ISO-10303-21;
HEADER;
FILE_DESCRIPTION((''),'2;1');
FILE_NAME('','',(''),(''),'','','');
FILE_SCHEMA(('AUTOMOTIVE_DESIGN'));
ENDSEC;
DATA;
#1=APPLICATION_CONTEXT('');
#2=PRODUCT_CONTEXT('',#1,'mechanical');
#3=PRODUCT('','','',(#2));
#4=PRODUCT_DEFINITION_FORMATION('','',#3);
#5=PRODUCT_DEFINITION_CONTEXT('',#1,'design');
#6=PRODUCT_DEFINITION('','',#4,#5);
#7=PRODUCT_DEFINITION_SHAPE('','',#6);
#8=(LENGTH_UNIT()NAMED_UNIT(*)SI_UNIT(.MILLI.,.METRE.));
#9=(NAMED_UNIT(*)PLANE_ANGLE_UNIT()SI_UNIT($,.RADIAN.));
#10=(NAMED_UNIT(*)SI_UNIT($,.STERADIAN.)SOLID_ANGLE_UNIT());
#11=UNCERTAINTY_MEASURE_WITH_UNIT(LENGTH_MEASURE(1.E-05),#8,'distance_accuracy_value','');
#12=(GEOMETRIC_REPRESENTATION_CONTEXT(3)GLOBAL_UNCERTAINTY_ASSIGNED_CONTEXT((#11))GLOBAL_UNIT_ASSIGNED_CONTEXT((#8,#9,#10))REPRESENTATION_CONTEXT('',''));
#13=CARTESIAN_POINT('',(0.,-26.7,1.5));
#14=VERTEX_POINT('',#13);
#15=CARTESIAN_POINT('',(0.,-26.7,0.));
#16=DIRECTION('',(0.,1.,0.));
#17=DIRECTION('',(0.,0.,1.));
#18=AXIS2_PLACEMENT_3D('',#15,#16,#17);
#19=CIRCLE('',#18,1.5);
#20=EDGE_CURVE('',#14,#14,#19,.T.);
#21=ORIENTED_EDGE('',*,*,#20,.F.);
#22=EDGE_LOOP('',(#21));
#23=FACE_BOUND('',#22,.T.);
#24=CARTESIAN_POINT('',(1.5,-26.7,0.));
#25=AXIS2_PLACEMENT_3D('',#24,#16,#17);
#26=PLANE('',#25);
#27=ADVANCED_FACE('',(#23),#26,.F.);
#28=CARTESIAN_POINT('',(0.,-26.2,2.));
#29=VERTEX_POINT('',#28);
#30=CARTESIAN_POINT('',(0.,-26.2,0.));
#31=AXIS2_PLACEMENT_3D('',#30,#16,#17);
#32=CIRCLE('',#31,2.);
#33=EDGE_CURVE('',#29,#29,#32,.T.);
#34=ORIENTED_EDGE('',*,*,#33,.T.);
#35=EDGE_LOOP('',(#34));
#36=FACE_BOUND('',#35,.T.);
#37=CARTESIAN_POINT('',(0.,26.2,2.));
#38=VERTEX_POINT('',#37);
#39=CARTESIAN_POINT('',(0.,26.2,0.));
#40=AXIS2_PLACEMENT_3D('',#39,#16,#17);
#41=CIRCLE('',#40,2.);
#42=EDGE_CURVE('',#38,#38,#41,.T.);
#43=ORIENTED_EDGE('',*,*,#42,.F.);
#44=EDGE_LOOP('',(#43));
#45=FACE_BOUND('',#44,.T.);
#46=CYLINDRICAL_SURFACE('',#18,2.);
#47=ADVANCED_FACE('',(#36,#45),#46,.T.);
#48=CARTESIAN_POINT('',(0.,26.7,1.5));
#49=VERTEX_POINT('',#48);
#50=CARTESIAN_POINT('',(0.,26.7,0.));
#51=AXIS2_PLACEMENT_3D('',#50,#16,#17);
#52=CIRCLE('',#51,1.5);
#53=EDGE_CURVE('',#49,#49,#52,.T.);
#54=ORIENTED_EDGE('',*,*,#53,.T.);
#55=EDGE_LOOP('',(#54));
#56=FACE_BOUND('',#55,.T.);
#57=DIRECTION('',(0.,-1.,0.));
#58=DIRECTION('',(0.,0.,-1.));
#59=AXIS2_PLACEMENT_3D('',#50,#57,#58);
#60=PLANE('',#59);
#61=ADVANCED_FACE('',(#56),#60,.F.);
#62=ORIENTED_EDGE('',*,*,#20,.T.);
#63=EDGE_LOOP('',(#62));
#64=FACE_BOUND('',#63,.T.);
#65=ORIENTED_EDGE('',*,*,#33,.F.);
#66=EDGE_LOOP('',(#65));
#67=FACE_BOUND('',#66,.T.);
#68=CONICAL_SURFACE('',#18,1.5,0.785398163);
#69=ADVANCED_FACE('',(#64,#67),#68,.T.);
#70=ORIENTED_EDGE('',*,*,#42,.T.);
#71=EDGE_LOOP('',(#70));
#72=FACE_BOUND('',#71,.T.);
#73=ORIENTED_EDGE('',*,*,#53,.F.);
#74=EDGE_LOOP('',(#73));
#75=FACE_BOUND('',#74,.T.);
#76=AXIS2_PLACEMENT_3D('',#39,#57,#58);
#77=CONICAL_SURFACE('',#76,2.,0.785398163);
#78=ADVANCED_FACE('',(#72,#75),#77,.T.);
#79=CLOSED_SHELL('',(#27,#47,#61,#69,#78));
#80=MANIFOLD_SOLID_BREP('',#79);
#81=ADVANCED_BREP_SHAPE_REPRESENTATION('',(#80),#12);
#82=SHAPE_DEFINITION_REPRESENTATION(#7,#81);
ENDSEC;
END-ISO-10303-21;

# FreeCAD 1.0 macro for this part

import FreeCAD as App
import Part
import Sketcher
Q = App.Units.Quantity


def add_polygon(sketch, points):
    """Adds a closed chain of lines whose ends are joined by coincident constraints."""
    first, n = sketch.GeometryCount, len(points)
    for a, b in zip(points, points[1:] + points[:1]):
        sketch.addGeometry(Part.LineSegment(App.Vector(*a, 0), App.Vector(*b, 0)), False)
    for i in range(n):
        sketch.addConstraint(Sketcher.Constraint("Coincident", first + i, 2, first + (i + 1) % n, 1))

doc = App.newDocument("Part")
body = doc.addObject("PartDesign::Body", "Body")

# Sketch on XY plane
sketch1 = body.newObject("Sketcher::SketchObject", "Sketch")
sketch1.AttachmentSupport = (doc.getObject("XY_Plane"), [""])
sketch1.MapMode = "FlatFace"
add_polygon(sketch1, [(1.5, 26.7), (0, 26.7), (0, -26.7), (1.5, -26.7), (2, -26.2), (2, 26.2)])  # lines 0-5
sketch1.addConstraint(Sketcher.Constraint("Horizontal", 0))
sketch1.addConstraint(Sketcher.Constraint("Vertical", 1))
sketch1.addConstraint(Sketcher.Constraint("Horizontal", 2))
sketch1.addConstraint(Sketcher.Constraint("Vertical", 4))
sketch1.addConstraint(Sketcher.Constraint("Symmetric", 0, 2, 1, 2, -1, 1))
sketch1.addConstraint(Sketcher.Constraint("Perpendicular", 3, 5))
sketch1.addConstraint(Sketcher.Constraint("Vertical", 2, 2, 5, 2))
sketch1.addConstraint(Sketcher.Constraint("Equal", 3, 5))
sketch1.addConstraint(Sketcher.Constraint("DistanceX", 0, 2, 0, 1, Q("1.5 mm")))
sketch1.addConstraint(Sketcher.Constraint("DistanceY", 1, 2, 1, 1, Q("53.4 mm")))
sketch1.addConstraint(Sketcher.Constraint("DistanceY", 4, 1, 4, 2, Q("52.4 mm")))
revolution = body.newObject("PartDesign::Revolution", "Revolution")
revolution.Profile = sketch1
revolution.ReferenceAxis = (sketch1, ["V_Axis"])
revolution.Angle = 360

doc.recompute()
